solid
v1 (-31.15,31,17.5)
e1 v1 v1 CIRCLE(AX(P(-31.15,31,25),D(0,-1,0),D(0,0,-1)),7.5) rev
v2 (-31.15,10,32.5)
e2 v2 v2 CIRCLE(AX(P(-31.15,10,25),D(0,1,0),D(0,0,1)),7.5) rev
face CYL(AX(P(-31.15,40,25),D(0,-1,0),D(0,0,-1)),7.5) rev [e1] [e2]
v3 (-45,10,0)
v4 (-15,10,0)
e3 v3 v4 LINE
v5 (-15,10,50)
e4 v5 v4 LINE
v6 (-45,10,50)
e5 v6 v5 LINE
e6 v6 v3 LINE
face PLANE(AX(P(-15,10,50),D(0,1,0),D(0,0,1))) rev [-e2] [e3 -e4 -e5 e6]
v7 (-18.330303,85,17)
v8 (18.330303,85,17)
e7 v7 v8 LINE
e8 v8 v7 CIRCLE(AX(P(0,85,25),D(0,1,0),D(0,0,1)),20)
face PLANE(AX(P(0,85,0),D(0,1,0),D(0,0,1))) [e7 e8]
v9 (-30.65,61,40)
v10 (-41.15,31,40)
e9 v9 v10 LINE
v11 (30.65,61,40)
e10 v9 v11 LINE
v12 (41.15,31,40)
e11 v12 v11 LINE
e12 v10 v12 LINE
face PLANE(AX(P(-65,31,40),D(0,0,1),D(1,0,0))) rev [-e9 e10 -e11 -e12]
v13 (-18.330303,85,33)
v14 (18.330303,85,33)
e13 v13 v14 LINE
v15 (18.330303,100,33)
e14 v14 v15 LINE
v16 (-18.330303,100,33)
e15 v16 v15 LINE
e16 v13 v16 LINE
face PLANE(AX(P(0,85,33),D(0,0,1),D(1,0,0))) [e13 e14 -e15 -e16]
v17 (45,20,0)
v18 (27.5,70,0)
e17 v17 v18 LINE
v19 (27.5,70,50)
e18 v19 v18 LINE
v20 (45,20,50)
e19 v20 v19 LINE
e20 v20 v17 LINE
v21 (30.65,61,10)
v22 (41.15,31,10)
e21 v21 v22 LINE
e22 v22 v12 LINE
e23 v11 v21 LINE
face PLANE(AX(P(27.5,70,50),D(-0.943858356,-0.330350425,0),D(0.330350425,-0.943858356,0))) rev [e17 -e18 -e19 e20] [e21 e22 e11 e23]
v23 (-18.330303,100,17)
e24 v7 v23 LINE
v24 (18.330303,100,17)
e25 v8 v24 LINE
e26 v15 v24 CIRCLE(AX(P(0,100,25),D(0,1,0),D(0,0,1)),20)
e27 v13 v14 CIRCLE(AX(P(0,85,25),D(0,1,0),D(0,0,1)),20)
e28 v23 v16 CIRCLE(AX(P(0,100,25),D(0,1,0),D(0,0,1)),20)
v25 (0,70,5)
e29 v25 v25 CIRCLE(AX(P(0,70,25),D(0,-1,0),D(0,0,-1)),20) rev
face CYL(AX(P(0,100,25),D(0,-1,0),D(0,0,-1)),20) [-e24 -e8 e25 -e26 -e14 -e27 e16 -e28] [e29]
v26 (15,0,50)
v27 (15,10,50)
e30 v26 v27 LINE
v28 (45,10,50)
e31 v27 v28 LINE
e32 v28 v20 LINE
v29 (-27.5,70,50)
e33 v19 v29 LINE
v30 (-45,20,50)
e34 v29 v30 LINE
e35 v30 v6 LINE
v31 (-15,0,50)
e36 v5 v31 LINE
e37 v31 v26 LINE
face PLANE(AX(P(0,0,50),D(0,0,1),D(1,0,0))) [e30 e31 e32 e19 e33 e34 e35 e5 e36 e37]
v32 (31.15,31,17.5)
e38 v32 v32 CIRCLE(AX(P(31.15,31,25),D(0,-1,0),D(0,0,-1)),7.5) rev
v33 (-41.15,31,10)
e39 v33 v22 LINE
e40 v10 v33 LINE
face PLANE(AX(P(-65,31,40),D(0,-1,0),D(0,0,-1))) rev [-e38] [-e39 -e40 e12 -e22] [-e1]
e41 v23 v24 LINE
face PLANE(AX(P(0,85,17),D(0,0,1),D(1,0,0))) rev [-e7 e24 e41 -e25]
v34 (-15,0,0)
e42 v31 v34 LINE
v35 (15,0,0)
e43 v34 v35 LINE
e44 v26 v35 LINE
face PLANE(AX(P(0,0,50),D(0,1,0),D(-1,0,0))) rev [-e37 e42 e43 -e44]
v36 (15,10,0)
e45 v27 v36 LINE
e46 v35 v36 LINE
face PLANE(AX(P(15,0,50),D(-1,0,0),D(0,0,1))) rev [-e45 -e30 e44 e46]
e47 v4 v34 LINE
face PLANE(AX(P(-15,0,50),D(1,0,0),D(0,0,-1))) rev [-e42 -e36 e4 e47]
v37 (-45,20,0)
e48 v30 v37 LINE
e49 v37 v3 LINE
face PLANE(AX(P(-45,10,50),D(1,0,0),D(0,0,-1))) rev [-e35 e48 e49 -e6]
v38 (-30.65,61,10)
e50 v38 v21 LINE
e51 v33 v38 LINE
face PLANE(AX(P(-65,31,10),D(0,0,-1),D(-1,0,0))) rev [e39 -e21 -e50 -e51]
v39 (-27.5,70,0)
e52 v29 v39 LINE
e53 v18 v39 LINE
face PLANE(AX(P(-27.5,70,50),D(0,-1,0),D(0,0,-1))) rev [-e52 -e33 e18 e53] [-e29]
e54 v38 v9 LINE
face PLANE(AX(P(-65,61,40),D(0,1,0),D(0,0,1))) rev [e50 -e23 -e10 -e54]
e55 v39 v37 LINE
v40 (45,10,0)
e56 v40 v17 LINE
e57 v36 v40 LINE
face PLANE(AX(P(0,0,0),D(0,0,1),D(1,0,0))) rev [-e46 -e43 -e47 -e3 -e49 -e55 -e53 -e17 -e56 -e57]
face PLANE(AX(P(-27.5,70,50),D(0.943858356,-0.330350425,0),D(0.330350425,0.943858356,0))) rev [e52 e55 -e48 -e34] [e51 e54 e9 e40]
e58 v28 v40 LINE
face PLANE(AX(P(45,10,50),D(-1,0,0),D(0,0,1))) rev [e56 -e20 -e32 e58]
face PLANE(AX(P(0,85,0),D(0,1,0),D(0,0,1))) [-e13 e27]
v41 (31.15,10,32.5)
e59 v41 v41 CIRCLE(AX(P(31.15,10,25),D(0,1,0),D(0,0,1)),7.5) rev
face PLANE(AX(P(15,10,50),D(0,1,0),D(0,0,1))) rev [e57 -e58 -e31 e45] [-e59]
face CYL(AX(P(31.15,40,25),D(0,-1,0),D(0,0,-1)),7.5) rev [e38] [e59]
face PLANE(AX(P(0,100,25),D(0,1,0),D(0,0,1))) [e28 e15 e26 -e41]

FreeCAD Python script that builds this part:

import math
import FreeCAD as App
import Part
import Sketcher
Q = App.Units.Quantity


def add_polygon(sketch, points):
    """Adds a closed chain of lines whose ends are joined by coincident constraints."""
    first, n = sketch.GeometryCount, len(points)
    for a, b in zip(points, points[1:] + points[:1]):
        sketch.addGeometry(Part.LineSegment(App.Vector(*a, 0), App.Vector(*b, 0)), False)
    for i in range(n):
        sketch.addConstraint(Sketcher.Constraint("Coincident", first + i, 2, first + (i + 1) % n, 1))

doc = App.newDocument("Part")
body = doc.addObject("PartDesign::Body", "Body")

# Sketch on XY plane
sketch1 = body.newObject("Sketcher::SketchObject", "Sketch")
sketch1.AttachmentSupport = (doc.getObject("XY_Plane"), [""])
sketch1.MapMode = "FlatFace"
add_polygon(sketch1, [(-15, 0), (15, 0), (15, 10), (45, 10), (45, 20), (27.5, 70), (-27.5, 70), (-45, 20), (-45, 10), (-15, 10)])  # lines 0-9
sketch1.addConstraint([
    Sketcher.Constraint("Horizontal", 0),
    Sketcher.Constraint("Vertical", 1),
    Sketcher.Constraint("Horizontal", 2),
    Sketcher.Constraint("Vertical", 3),
    Sketcher.Constraint("Horizontal", 5),
    Sketcher.Constraint("Vertical", 7),
    Sketcher.Constraint("Horizontal", 8),
    Sketcher.Constraint("Vertical", 9),
    Sketcher.Constraint("Symmetric", 0, 2, 9, 2, -1, 1),
    Sketcher.Constraint("Symmetric", 3, 2, 6, 2, -2),
    Sketcher.Constraint("Horizontal", 2, 2, 7, 2),
    Sketcher.Constraint("Equal", 0, 2),
    Sketcher.Constraint("Equal", 1, 3),
    Sketcher.Constraint("Equal", 4, 6),
    Sketcher.Constraint("DistanceX", 0, 1, 0, 2, Q("30 mm")),
    Sketcher.Constraint("DistanceX", 5, 2, 5, 1, Q("55 mm")),
    Sketcher.Constraint("DistanceY", 1, 1, 1, 2, Q("10 mm")),
    Sketcher.Constraint("DistanceY", -1, 1, 4, 2, Q("70 mm")),
])
pad1 = body.newObject("PartDesign::Pad", "Pad")
pad1.Profile = sketch1
pad1.Length = 50

# Sketch on YZ plane
sketch2 = body.newObject("Sketcher::SketchObject", "Sketch001")
sketch2.AttachmentSupport = (doc.getObject("YZ_Plane"), [""])
sketch2.MapMode = "FlatFace"
add_polygon(sketch2, [(61, 40), (31, 40), (31, 10), (61, 10)])  # lines 0-3
sketch2.addConstraint([
    Sketcher.Constraint("Horizontal", 0),
    Sketcher.Constraint("Vertical", 1),
    Sketcher.Constraint("Horizontal", 2),
    Sketcher.Constraint("Vertical", 3),
    Sketcher.Constraint("Equal", 2, 1),
    Sketcher.Constraint("DistanceX", 0, 2, 0, 1, Q("30 mm")),
    Sketcher.Constraint("DistanceX", -1, 1, 0, 2, Q("31 mm")),
    Sketcher.Constraint("DistanceY", -1, 1, 0, 2, Q("40 mm")),
])
pocket1 = body.newObject("PartDesign::Pocket", "Pocket")
pocket1.Profile = sketch2
pocket1.Length = 130
pocket1.Midplane = True

# Sketch on XZ plane
sketch3 = body.newObject("Sketcher::SketchObject", "Sketch002")
sketch3.AttachmentSupport = (doc.getObject("XZ_Plane"), [""])
sketch3.MapMode = "FlatFace"
sketch3.addGeometry([
    Part.Circle(App.Vector(-31.15, 25, 0), App.Vector(0, 0, 1), 7.5),
    Part.Circle(App.Vector(31.15, 25, 0), App.Vector(0, 0, 1), 7.5),
], False)
sketch3.addConstraint([
    Sketcher.Constraint("Equal", 0, 1),
    Sketcher.Constraint("Symmetric", 0, 3, 1, 3, -2),
    Sketcher.Constraint("Diameter", 0, Q("15 mm")),
    Sketcher.Constraint("DistanceY", -1, 1, 0, 3, Q("25 mm")),
    Sketcher.Constraint("DistanceX", 0, 3, 1, 3, Q("62.3 mm")),
])
pocket2 = body.newObject("PartDesign::Pocket", "Pocket001")
pocket2.Profile = sketch3
pocket2.Length = 40

# Sketch on XZ plane
sketch4 = body.newObject("Sketcher::SketchObject", "Sketch003")
sketch4.AttachmentSupport = (doc.getObject("XZ_Plane"), [""])
sketch4.MapMode = "FlatFace"
sketch4.AttachmentOffset = App.Placement(App.Vector(0, 0, -70), App.Rotation())
sketch4.addGeometry(Part.Circle(App.Vector(0, 25, 0), App.Vector(0, 0, 1), 20), False)
sketch4.addConstraint([
    Sketcher.Constraint("PointOnObject", 0, 3, -2),
    Sketcher.Constraint("Diameter", 0, Q("40 mm")),
    Sketcher.Constraint("DistanceY", -1, 1, 0, 3, Q("25 mm")),
])
pad2 = body.newObject("PartDesign::Pad", "Pad001")
pad2.Profile = sketch4
pad2.Length = 30
pad2.Reversed = True

# Sketch on XZ plane
sketch5 = body.newObject("Sketcher::SketchObject", "Sketch004")
sketch5.AttachmentSupport = (doc.getObject("XZ_Plane"), [""])
sketch5.MapMode = "FlatFace"
sketch5.AttachmentOffset = App.Placement(App.Vector(0, 0, -85), App.Rotation())
sketch5.addGeometry([
    Part.ArcOfCircle(Part.Circle(App.Vector(0, 25, 0), App.Vector(0, 0, 1), 20), math.radians(-156.421822), math.radians(-23.578178)),
    Part.LineSegment(App.Vector(-18.330303, 17, 0), App.Vector(18.330303, 17, 0)),
    Part.LineSegment(App.Vector(18.330303, 33, 0), App.Vector(-18.330303, 33, 0)),
    Part.ArcOfCircle(Part.Circle(App.Vector(0, 25, 0), App.Vector(0, 0, 1), 20), math.radians(23.578178), math.radians(156.421822)),
], False)
sketch5.addConstraint([
    Sketcher.Constraint("Coincident", 0, 1, 1, 1),
    Sketcher.Constraint("Coincident", 1, 2, 0, 2),
    Sketcher.Constraint("Coincident", 2, 1, 3, 1),
    Sketcher.Constraint("Coincident", 3, 2, 2, 2),
    Sketcher.Constraint("Horizontal", 1),
    Sketcher.Constraint("Horizontal", 2),
    Sketcher.Constraint("Coincident", 3, 3, 0, 3),
    Sketcher.Constraint("Equal", 0, 3),
    Sketcher.Constraint("PointOnObject", 0, 3, -2),
    Sketcher.Constraint("Vertical", 1, 2, 2, 1),
    Sketcher.Constraint("Radius", 0, Q("20 mm")),
    Sketcher.Constraint("DistanceY", -1, 1, 0, 3, Q("25 mm")),
    Sketcher.Constraint("DistanceY", -1, 1, 0, 1, Q("17 mm")),
])
pocket3 = body.newObject("PartDesign::Pocket", "Pocket002")
pocket3.Profile = sketch5
pocket3.Length = 15

doc.recompute()
